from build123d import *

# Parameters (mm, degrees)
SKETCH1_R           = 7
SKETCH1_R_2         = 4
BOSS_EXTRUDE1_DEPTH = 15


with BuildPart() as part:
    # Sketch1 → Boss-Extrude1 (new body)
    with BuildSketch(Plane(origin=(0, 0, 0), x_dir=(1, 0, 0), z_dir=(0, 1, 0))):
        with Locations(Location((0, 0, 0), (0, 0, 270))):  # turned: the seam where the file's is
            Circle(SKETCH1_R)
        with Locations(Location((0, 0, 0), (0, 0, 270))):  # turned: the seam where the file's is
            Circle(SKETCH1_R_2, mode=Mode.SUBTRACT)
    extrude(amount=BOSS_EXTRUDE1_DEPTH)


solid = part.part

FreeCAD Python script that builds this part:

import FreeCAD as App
import Part
import Sketcher

doc = App.newDocument("Part")
params = doc.addObject("Spreadsheet::Sheet", "Params")
for row, (alias, value) in enumerate([
    ("sketch1_diameter", "14 mm"),
    ("sketch1_diameter2", "8 mm"),
    ("pad1_length", "15 mm"),
], start=1):
    params.set(f"A{row}", alias)
    params.set(f"B{row}", "=" + value)
    params.setAlias(f"B{row}", alias)

body = doc.addObject("PartDesign::Body", "Body")

sketch1 = doc.addObject("Sketcher::SketchObject", "Sketch")
body.addObject(sketch1)
sketch1.AttachmentSupport = (doc.XZ_Plane, [""])
sketch1.MapMode = "FlatFace"
sketch1.addGeometry(Part.Circle(App.Vector(0, 0, 0), App.Vector(0, 0, 1), 7), False)
sketch1.addGeometry(Part.Circle(App.Vector(0, 0, 0), App.Vector(0, 0, 1), 4), False)
sketch1.addConstraint(Sketcher.Constraint("Coincident", 0, 3, -1, 1))
sketch1.addConstraint(Sketcher.Constraint("Coincident", 1, 3, -1, 1))
sketch1.addConstraint(Sketcher.Constraint("Diameter", 0, 14.0))
sketch1.addConstraint(Sketcher.Constraint("Diameter", 1, 8.0))
sketch1.setExpression("Constraints[2]", "Params.sketch1_diameter")
sketch1.setExpression("Constraints[3]", "Params.sketch1_diameter2")
pad1 = doc.addObject("PartDesign::Pad", "Pad")
body.addObject(pad1)
pad1.Profile = sketch1
pad1.setExpression("Length", "Params.pad1_length")
pad1.Reversed = True

doc.recompute()
